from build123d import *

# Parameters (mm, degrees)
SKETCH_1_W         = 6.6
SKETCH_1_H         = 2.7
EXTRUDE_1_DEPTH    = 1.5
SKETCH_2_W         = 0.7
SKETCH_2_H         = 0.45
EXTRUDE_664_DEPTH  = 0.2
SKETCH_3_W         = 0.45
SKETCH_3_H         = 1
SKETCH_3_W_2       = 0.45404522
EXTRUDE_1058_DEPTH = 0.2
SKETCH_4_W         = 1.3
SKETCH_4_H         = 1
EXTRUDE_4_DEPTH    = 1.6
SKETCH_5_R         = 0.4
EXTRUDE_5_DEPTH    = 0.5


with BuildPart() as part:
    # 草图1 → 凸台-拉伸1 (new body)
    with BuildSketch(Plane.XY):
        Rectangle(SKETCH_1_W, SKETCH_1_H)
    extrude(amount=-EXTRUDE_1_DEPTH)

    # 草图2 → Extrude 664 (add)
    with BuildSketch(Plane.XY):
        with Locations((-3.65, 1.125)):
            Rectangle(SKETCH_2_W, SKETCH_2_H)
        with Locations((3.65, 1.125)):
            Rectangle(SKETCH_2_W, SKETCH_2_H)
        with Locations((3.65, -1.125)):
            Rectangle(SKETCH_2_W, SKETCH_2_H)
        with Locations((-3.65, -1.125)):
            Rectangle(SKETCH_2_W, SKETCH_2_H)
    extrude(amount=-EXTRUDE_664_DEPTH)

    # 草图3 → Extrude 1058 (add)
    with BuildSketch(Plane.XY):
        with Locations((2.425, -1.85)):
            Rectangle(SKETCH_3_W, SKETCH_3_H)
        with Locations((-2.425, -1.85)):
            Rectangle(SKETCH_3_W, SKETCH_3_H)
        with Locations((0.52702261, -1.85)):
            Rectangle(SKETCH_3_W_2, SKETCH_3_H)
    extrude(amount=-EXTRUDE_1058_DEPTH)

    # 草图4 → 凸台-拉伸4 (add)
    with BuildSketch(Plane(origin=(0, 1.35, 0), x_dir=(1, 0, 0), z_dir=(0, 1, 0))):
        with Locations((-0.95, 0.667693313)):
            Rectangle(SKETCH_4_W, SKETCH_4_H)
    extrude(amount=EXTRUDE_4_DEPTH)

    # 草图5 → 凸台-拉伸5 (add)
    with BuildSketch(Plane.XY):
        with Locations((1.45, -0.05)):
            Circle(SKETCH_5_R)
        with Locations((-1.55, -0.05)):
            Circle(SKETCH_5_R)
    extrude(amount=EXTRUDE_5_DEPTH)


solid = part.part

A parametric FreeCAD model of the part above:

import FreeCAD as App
import Part
import Sketcher
Q = App.Units.Quantity

doc = App.newDocument("Part")
body = doc.addObject("PartDesign::Body", "Body")

# Sketch on XY plane
sketch1 = body.newObject("Sketcher::SketchObject", "Sketch")
sketch1.AttachmentSupport = (doc.getObject("XY_Plane"), [""])
sketch1.MapMode = "FlatFace"
sketch1.addGeometry([
    Part.LineSegment(App.Vector(-3.3, 1.4, 0), App.Vector(-3.3, -1.4, 0)),
    Part.LineSegment(App.Vector(-3.3, -1.4, 0), App.Vector(3.3, -1.4, 0)),
    Part.LineSegment(App.Vector(3.3, -1.4, 0), App.Vector(3.3, 1.4, 0)),
    Part.LineSegment(App.Vector(3.3, 1.4, 0), App.Vector(-3.3, 1.4, 0)),
], False)
sketch1.addConstraint([
    Sketcher.Constraint("Coincident", 0, 2, 1, 1),
    Sketcher.Constraint("Coincident", 1, 2, 2, 1),
    Sketcher.Constraint("Coincident", 2, 2, 3, 1),
    Sketcher.Constraint("Coincident", 3, 2, 0, 1),
    Sketcher.Constraint("Vertical", 0),
    Sketcher.Constraint("Horizontal", 1),
    Sketcher.Constraint("Vertical", 2),
    Sketcher.Constraint("Horizontal", 3),
    Sketcher.Constraint("Symmetric", 0, 2, 2, 2, -1, 1),
    Sketcher.Constraint("DistanceX", 1, 1, 1, 2, Q("6.6 mm")),
    Sketcher.Constraint("DistanceY", 0, 2, 0, 1, Q("2.7 mm")),
])
pad1 = body.newObject("PartDesign::Pad", "Pad")
pad1.Profile = sketch1
pad1.Length = 1.5
pad1.Reversed = True

# Sketch on XY plane
sketch2 = body.newObject("Sketcher::SketchObject", "Sketch001")
sketch2.AttachmentSupport = (doc.getObject("XY_Plane"), [""])
sketch2.MapMode = "FlatFace"
sketch2.addGeometry([
    Part.LineSegment(App.Vector(-4, 1.35, 0), App.Vector(-4, 0.9, 0)),  # 0
    Part.LineSegment(App.Vector(-4, 0.9, 0), App.Vector(-3.3, 0.9, 0)),  # 1
    Part.LineSegment(App.Vector(-3.3, 0.9, 0), App.Vector(-3.3, 1.35, 0)),  # 2
    Part.LineSegment(App.Vector(-3.3, 1.35, 0), App.Vector(-4, 1.35, 0)),  # 3
    Part.LineSegment(App.Vector(3.3, 1.35, 0), App.Vector(3.3, 0.9, 0)),  # 4
    Part.LineSegment(App.Vector(3.3, 0.9, 0), App.Vector(4, 0.9, 0)),  # 5
    Part.LineSegment(App.Vector(4, 0.9, 0), App.Vector(4, 1.35, 0)),  # 6
    Part.LineSegment(App.Vector(4, 1.35, 0), App.Vector(3.3, 1.35, 0)),  # 7
    Part.LineSegment(App.Vector(3.3, -0.9, 0), App.Vector(3.3, -1.35, 0)),  # 8
    Part.LineSegment(App.Vector(3.3, -1.35, 0), App.Vector(4, -1.35, 0)),  # 9
    Part.LineSegment(App.Vector(4, -1.35, 0), App.Vector(4, -0.9, 0)),  # 10
    Part.LineSegment(App.Vector(4, -0.9, 0), App.Vector(3.3, -0.9, 0)),  # 11
    Part.LineSegment(App.Vector(-4, -0.9, 0), App.Vector(-4, -1.35, 0)),  # 12
    Part.LineSegment(App.Vector(-4, -1.35, 0), App.Vector(-3.3, -1.35, 0)),  # 13
    Part.LineSegment(App.Vector(-3.3, -1.35, 0), App.Vector(-3.3, -0.9, 0)),  # 14
    Part.LineSegment(App.Vector(-3.3, -0.9, 0), App.Vector(-4, -0.9, 0)),  # 15
], False)
sketch2.addConstraint([
    Sketcher.Constraint("Coincident", 0, 2, 1, 1),
    Sketcher.Constraint("Coincident", 1, 2, 2, 1),
    Sketcher.Constraint("Coincident", 2, 2, 3, 1),
    Sketcher.Constraint("Coincident", 3, 2, 0, 1),
    Sketcher.Constraint("Coincident", 4, 2, 5, 1),
    Sketcher.Constraint("Coincident", 5, 2, 6, 1),
    Sketcher.Constraint("Coincident", 6, 2, 7, 1),
    Sketcher.Constraint("Coincident", 7, 2, 4, 1),
    Sketcher.Constraint("Coincident", 8, 2, 9, 1),
    Sketcher.Constraint("Coincident", 9, 2, 10, 1),
    Sketcher.Constraint("Coincident", 10, 2, 11, 1),
    Sketcher.Constraint("Coincident", 11, 2, 8, 1),
    Sketcher.Constraint("Coincident", 12, 2, 13, 1),
    Sketcher.Constraint("Coincident", 13, 2, 14, 1),
    Sketcher.Constraint("Coincident", 14, 2, 15, 1),
    Sketcher.Constraint("Coincident", 15, 2, 12, 1),
    Sketcher.Constraint("Vertical", 0),
    Sketcher.Constraint("Horizontal", 1),
    Sketcher.Constraint("Vertical", 2),
    Sketcher.Constraint("Horizontal", 3),
    Sketcher.Constraint("Vertical", 4),
    Sketcher.Constraint("Horizontal", 5),
    Sketcher.Constraint("Vertical", 6),
    Sketcher.Constraint("Horizontal", 7),
    Sketcher.Constraint("Vertical", 8),
    Sketcher.Constraint("Horizontal", 9),
    Sketcher.Constraint("Vertical", 10),
    Sketcher.Constraint("Horizontal", 11),
    Sketcher.Constraint("Vertical", 12),
    Sketcher.Constraint("Horizontal", 13),
    Sketcher.Constraint("Vertical", 14),
    Sketcher.Constraint("Horizontal", 15),
    Sketcher.Constraint("Symmetric", 2, 2, 8, 2, -1, 1),
    Sketcher.Constraint("Symmetric", 0, 2, 10, 2, -1, 1),
    Sketcher.Constraint("Symmetric", 6, 2, 12, 2, -1, 1),
    Sketcher.Constraint("Symmetric", 4, 2, 14, 2, -1, 1),
    Sketcher.Constraint("Symmetric", 1, 2, 4, 2, -2),
    Sketcher.Constraint("Symmetric", 3, 2, 6, 2, -2),
    Sketcher.Constraint("DistanceX", 1, 1, 1, 2, Q("0.7 mm")),
    Sketcher.Constraint("DistanceX", 0, 2, -1, 1, Q("4 mm")),
    Sketcher.Constraint("DistanceY", 0, 2, 0, 1, Q("0.45 mm")),
    Sketcher.Constraint("DistanceY", -1, 1, 0, 2, Q("0.9 mm")),
])
pad2 = body.newObject("PartDesign::Pad", "Pad001")
pad2.Profile = sketch2
pad2.Length = 0.2
pad2.Reversed = True

# Sketch on XY plane
sketch3 = body.newObject("Sketcher::SketchObject", "Sketch002")
sketch3.AttachmentSupport = (doc.getObject("XY_Plane"), [""])
sketch3.MapMode = "FlatFace"
sketch3.addGeometry([
    Part.LineSegment(App.Vector(2.2, -1.35, 0), App.Vector(2.2, -2.35, 0)),  # 0
    Part.LineSegment(App.Vector(2.2, -2.35, 0), App.Vector(2.65, -2.35, 0)),  # 1
    Part.LineSegment(App.Vector(2.65, -2.35, 0), App.Vector(2.65, -1.35, 0)),  # 2
    Part.LineSegment(App.Vector(2.65, -1.35, 0), App.Vector(2.2, -1.35, 0)),  # 3
    Part.LineSegment(App.Vector(-2.65, -1.35, 0), App.Vector(-2.65, -2.35, 0)),  # 4
    Part.LineSegment(App.Vector(-2.65, -2.35, 0), App.Vector(-2.2, -2.35, 0)),  # 5
    Part.LineSegment(App.Vector(-2.2, -2.35, 0), App.Vector(-2.2, -1.35, 0)),  # 6
    Part.LineSegment(App.Vector(-2.2, -1.35, 0), App.Vector(-2.65, -1.35, 0)),  # 7
    Part.LineSegment(App.Vector(0.3, -1.35, 0), App.Vector(0.3, -2.35, 0)),  # 8
    Part.LineSegment(App.Vector(0.3, -2.35, 0), App.Vector(0.75, -2.35, 0)),  # 9
    Part.LineSegment(App.Vector(0.75, -2.35, 0), App.Vector(0.75, -1.35, 0)),  # 10
    Part.LineSegment(App.Vector(0.75, -1.35, 0), App.Vector(0.3, -1.35, 0)),  # 11
], False)
sketch3.addConstraint([
    Sketcher.Constraint("Coincident", 0, 2, 1, 1),
    Sketcher.Constraint("Coincident", 1, 2, 2, 1),
    Sketcher.Constraint("Coincident", 2, 2, 3, 1),
    Sketcher.Constraint("Coincident", 3, 2, 0, 1),
    Sketcher.Constraint("Coincident", 4, 2, 5, 1),
    Sketcher.Constraint("Coincident", 5, 2, 6, 1),
    Sketcher.Constraint("Coincident", 6, 2, 7, 1),
    Sketcher.Constraint("Coincident", 7, 2, 4, 1),
    Sketcher.Constraint("Coincident", 8, 2, 9, 1),
    Sketcher.Constraint("Coincident", 9, 2, 10, 1),
    Sketcher.Constraint("Coincident", 10, 2, 11, 1),
    Sketcher.Constraint("Coincident", 11, 2, 8, 1),
    Sketcher.Constraint("Vertical", 0),
    Sketcher.Constraint("Horizontal", 1),
    Sketcher.Constraint("Vertical", 2),
    Sketcher.Constraint("Horizontal", 3),
    Sketcher.Constraint("Vertical", 4),
    Sketcher.Constraint("Horizontal", 5),
    Sketcher.Constraint("Vertical", 6),
    Sketcher.Constraint("Horizontal", 7),
    Sketcher.Constraint("Vertical", 8),
    Sketcher.Constraint("Horizontal", 9),
    Sketcher.Constraint("Vertical", 10),
    Sketcher.Constraint("Horizontal", 11),
    Sketcher.Constraint("Symmetric", 1, 2, 4, 2, -2),
    Sketcher.Constraint("Symmetric", 3, 2, 6, 2, -2),
    Sketcher.Constraint("Horizontal", 5, 2, 8, 2),
    Sketcher.Constraint("Horizontal", 7, 2, 10, 2),
    Sketcher.Constraint("DistanceY", 0, 2, 0, 1, Q("1 mm")),
    Sketcher.Constraint("DistanceX", 1, 1, 1, 2, Q("0.45 mm")),
    Sketcher.Constraint("DistanceX", -1, 1, 0, 2, Q("2.2 mm")),
    Sketcher.Constraint("DistanceX", -1, 1, 8, 2, Q("0.3 mm")),
    Sketcher.Constraint("DistanceY", 0, 2, -1, 1, Q("2.35 mm")),
    Sketcher.Constraint("DistanceX", 9, 1, 9, 2, Q("0.454045 mm")),
])
pad3 = body.newObject("PartDesign::Pad", "Pad002")
pad3.Profile = sketch3
pad3.Length = 0.2
pad3.Reversed = True

# Sketch on XZ plane
sketch4 = body.newObject("Sketcher::SketchObject", "Sketch003")
sketch4.AttachmentSupport = (doc.getObject("XZ_Plane"), [""])
sketch4.MapMode = "FlatFace"
sketch4.AttachmentOffset = App.Placement(App.Vector(0, 0, -1.35), App.Rotation())
sketch4.addGeometry([
    Part.LineSegment(App.Vector(-1.6, -1.2, 0), App.Vector(-1.6, -0.2, 0)),
    Part.LineSegment(App.Vector(-1.6, -0.2, 0), App.Vector(-0.3, -0.2, 0)),
    Part.LineSegment(App.Vector(-0.3, -0.2, 0), App.Vector(-0.3, -1.2, 0)),
    Part.LineSegment(App.Vector(-0.3, -1.2, 0), App.Vector(-1.6, -1.2, 0)),
], False)
sketch4.addConstraint([
    Sketcher.Constraint("Coincident", 0, 2, 1, 1),
    Sketcher.Constraint("Coincident", 1, 2, 2, 1),
    Sketcher.Constraint("Coincident", 2, 2, 3, 1),
    Sketcher.Constraint("Coincident", 3, 2, 0, 1),
    Sketcher.Constraint("Vertical", 0),
    Sketcher.Constraint("Horizontal", 1),
    Sketcher.Constraint("Vertical", 2),
    Sketcher.Constraint("Horizontal", 3),
    Sketcher.Constraint("DistanceY", 0, 1, 0, 2, Q("1 mm")),
    Sketcher.Constraint("DistanceX", 1, 1, 1, 2, Q("1.3 mm")),
    Sketcher.Constraint("DistanceX", 0, 2, -1, 1, Q("1.6 mm")),
    Sketcher.Constraint("DistanceY", 0, 2, -1, 1, Q("0.167693 mm")),
])
pad4 = body.newObject("PartDesign::Pad", "Pad003")
pad4.Profile = sketch4
pad4.Length = 1.6
pad4.Reversed = True

# Sketch on XY plane
sketch5 = body.newObject("Sketcher::SketchObject", "Sketch004")
sketch5.AttachmentSupport = (doc.getObject("XY_Plane"), [""])
sketch5.MapMode = "FlatFace"
sketch5.addGeometry([
    Part.Circle(App.Vector(1.45, -0.05, 0), App.Vector(0, 0, 1), 0.4),
    Part.Circle(App.Vector(-1.55, -0.05, 0), App.Vector(0, 0, 1), 0.4),
], False)
sketch5.addConstraint([
    Sketcher.Constraint("Equal", 0, 1),
    Sketcher.Constraint("Horizontal", 0, 3, 1, 3),
    Sketcher.Constraint("Diameter", 0, Q("0.8 mm")),
    Sketcher.Constraint("DistanceX", 1, 3, 0, 3, Q("3 mm")),
    Sketcher.Constraint("DistanceX", -1, 1, 0, 3, Q("1.45 mm")),
    Sketcher.Constraint("DistanceY", 0, 3, -1, 1, Q("0.05 mm")),
])
pad5 = body.newObject("PartDesign::Pad", "Pad004")
pad5.Profile = sketch5
pad5.Length = 0.5

doc.recompute()
